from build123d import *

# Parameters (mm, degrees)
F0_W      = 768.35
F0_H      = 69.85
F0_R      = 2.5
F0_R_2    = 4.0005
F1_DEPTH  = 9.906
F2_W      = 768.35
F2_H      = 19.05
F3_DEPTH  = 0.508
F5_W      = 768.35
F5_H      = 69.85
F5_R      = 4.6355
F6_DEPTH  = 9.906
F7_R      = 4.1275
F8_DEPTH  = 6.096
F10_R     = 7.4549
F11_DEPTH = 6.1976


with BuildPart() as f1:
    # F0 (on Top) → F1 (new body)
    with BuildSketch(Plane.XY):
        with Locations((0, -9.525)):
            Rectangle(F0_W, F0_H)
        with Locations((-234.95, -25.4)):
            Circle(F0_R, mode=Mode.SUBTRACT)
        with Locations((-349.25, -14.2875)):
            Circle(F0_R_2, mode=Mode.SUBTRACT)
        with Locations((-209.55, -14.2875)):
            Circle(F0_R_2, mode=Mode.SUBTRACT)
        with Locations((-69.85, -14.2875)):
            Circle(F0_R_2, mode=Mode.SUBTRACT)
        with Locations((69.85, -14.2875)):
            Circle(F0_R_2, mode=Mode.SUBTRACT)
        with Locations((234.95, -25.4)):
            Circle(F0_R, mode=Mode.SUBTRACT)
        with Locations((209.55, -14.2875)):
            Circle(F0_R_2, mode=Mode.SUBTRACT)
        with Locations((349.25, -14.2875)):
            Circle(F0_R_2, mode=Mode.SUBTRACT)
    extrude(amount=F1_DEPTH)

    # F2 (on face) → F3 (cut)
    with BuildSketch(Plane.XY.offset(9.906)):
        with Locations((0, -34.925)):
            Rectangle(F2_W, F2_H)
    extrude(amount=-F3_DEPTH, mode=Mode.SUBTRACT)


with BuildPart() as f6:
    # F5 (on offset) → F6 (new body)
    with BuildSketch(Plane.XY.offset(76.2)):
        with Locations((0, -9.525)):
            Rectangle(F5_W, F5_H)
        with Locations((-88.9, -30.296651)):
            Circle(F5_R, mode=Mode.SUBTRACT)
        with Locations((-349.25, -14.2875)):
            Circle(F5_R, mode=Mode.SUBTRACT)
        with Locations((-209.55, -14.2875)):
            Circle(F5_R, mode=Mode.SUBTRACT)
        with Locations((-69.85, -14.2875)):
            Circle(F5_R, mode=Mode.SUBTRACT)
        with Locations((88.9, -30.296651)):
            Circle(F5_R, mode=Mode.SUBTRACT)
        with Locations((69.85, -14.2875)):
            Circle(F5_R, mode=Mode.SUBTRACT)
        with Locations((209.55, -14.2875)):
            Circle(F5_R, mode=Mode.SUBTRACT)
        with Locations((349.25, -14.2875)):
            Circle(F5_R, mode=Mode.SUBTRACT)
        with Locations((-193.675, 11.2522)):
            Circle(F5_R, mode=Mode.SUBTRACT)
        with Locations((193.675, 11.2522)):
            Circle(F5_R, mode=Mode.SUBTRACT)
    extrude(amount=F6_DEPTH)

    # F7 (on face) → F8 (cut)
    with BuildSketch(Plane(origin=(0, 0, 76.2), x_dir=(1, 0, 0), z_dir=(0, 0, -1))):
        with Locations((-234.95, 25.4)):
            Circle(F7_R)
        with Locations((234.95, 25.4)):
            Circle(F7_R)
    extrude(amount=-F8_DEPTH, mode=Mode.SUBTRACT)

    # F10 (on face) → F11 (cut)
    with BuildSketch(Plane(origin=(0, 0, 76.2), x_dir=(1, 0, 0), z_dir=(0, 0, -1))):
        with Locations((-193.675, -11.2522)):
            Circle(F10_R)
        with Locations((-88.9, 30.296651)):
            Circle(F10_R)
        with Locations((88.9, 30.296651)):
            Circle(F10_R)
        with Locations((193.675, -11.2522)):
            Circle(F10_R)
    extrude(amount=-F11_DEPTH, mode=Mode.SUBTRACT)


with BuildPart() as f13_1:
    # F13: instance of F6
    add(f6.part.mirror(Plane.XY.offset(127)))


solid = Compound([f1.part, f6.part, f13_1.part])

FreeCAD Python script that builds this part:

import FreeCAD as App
import Part
import Sketcher

V = App.Vector
Q = App.Units.Quantity


def add_polygon(sketch, points):
    """Adds a closed chain of lines whose ends are joined by coincident constraints."""
    first, n = sketch.GeometryCount, len(points)
    for a, b in zip(points, points[1:] + points[:1]):
        sketch.addGeometry(Part.LineSegment(App.Vector(*a, 0), App.Vector(*b, 0)), False)
    for i in range(n):
        sketch.addConstraint(Sketcher.Constraint("Coincident", first + i, 2, first + (i + 1) % n, 1))

doc = App.newDocument("Part")
body = doc.addObject("PartDesign::Body", "Body")

sketch1 = body.newObject("Sketcher::SketchObject", "Sketch")
sketch1.AttachmentSupport = (doc.getObject("XY_Plane"), [""])
sketch1.MapMode = "FlatFace"
add_polygon(sketch1, [(-384.2, 25.4), (-384.2, -44.5), (384.2, -44.5), (384.2, 25.4)])
sketch1.addGeometry(Part.Circle(V(-234.9, -25.4, 0), V(0, 0, 1), 2.5), False)
sketch1.addGeometry(Part.Circle(V(234.9, -25.4, 0), V(0, 0, 1), 2.5), False)
sketch1.addGeometry(Part.Circle(V(-349.2, -14.3, 0), V(0, 0, 1), 4), False)
sketch1.addGeometry(Part.Circle(V(-209.6, -14.3, 0), V(0, 0, 1), 4), False)
sketch1.addGeometry(Part.Circle(V(-69.8, -14.3, 0), V(0, 0, 1), 4), False)
sketch1.addGeometry(Part.Circle(V(69.8, -14.3, 0), V(0, 0, 1), 4), False)
sketch1.addGeometry(Part.Circle(V(209.6, -14.3, 0), V(0, 0, 1), 4), False)
sketch1.addGeometry(Part.Circle(V(349.2, -14.3, 0), V(0, 0, 1), 4), False)
sketch1.addConstraint([
    Sketcher.Constraint("Vertical", 0),
    Sketcher.Constraint("Horizontal", 1),
    Sketcher.Constraint("Vertical", 2),
    Sketcher.Constraint("Horizontal", 3),
    Sketcher.Constraint("Equal", 4, 5),
    Sketcher.Constraint("Equal", 6, 7),
    Sketcher.Constraint("Equal", 7, 8),
    Sketcher.Constraint("Equal", 8, 9),
    Sketcher.Constraint("Equal", 9, 10),
    Sketcher.Constraint("Equal", 10, 11),
    Sketcher.Constraint("Symmetric", 4, 3, 5, 3, -2),
    Sketcher.Constraint("Symmetric", 8, 3, 9, 3, -2),
    Sketcher.Constraint("Symmetric", 7, 3, 10, 3, -2),
    Sketcher.Constraint("Symmetric", 6, 3, 11, 3, -2),
    Sketcher.Constraint("Horizontal", 6, 3, 7, 3),
    Sketcher.Constraint("Horizontal", 7, 3, 8, 3),
    Sketcher.Constraint("Diameter", 6, Q("0.315 in")),
    Sketcher.Constraint("DistanceY", 4, 3, -1, 1, Q("1 in")),
    Sketcher.Constraint("DistanceY", -1, 1, 2, 2, Q("1 in")),
    Sketcher.Constraint("DistanceX", 6, 3, 5, 3, Q("23 in")),
    Sketcher.Constraint("DistanceX", 4, 3, 7, 3, Q("1 in")),
    Sketcher.Constraint("DistanceX", 6, 3, 8, 3, Q("11 in")),
    Sketcher.Constraint("DistanceX", 1, 1, 1, 2, Q("30.25 in")),
    Sketcher.Constraint("DistanceY", 0, 2, 0, 1, Q("2.75 in")),
    Sketcher.Constraint("DistanceX", 4, 3, 5, 3, Q("18.5 in")),
    Sketcher.Constraint("Diameter", 4, 5.0),
    Sketcher.Constraint("DistanceY", 6, 3, -1, 1, Q("0.5625 in")),
    Sketcher.Constraint("DistanceX", 0, 2, -1, 1, Q("15.125 in")),
])
pad1 = body.newObject("PartDesign::Pad", "Pad")
pad1.Profile = sketch1
pad1.Length = Q("0.39 in")

sketch2 = body.newObject("Sketcher::SketchObject", "Sketch001")
sketch2.AttachmentSupport = (doc.getObject("XY_Plane"), [""])
sketch2.MapMode = "FlatFace"
sketch2.AttachmentOffset = App.Placement(V(0, 0, 0.39 * 25.4), App.Rotation())
add_polygon(sketch2, [(-384, -25), (-384, -44), (384, -44), (384, -25)])
sketch2.addConstraint([
    Sketcher.Constraint("Vertical", 0),
    Sketcher.Constraint("Horizontal", 1),
    Sketcher.Constraint("Vertical", 2),
    Sketcher.Constraint("Horizontal", 3),
    Sketcher.Constraint("DistanceY", 2, 2, -1, 1, Q("1 in")),
    Sketcher.Constraint("DistanceX", 1, 1, 1, 2, Q("30.25 in")),
    Sketcher.Constraint("DistanceY", 0, 2, 0, 1, Q("0.75 in")),
    Sketcher.Constraint("DistanceX", 0, 2, -1, 1, Q("15.125 in")),
])
pocket1 = body.newObject("PartDesign::Pocket", "Pocket")
pocket1.Profile = sketch2
pocket1.Length = Q("0.02 in")
body2 = doc.addObject("PartDesign::Body", "Body001")

sketch3 = body2.newObject("Sketcher::SketchObject", "Sketch002")
sketch3.AttachmentSupport = (doc.getObject("XY_Plane001"), [""])
sketch3.MapMode = "FlatFace"
sketch3.AttachmentOffset = App.Placement(V(0, 0, 3 * 25.4), App.Rotation())
add_polygon(sketch3, [(-384.2, 25.4), (-384.2, -44.5), (384.2, -44.5), (384.2, 25.4)])
sketch3.addGeometry(Part.Circle(V(-88.9, -30.3, 0), V(0, 0, 1), 4.6), False)
sketch3.addGeometry(Part.Circle(V(-349.2, -14.3, 0), V(0, 0, 1), 4.6), False)
sketch3.addGeometry(Part.Circle(V(-209.6, -14.3, 0), V(0, 0, 1), 4.6), False)
sketch3.addGeometry(Part.Circle(V(-69.8, -14.3, 0), V(0, 0, 1), 4.6), False)
sketch3.addGeometry(Part.Circle(V(88.9, -30.3, 0), V(0, 0, 1), 4.6), False)
sketch3.addGeometry(Part.Circle(V(69.8, -14.3, 0), V(0, 0, 1), 4.6), False)
sketch3.addGeometry(Part.Circle(V(209.6, -14.3, 0), V(0, 0, 1), 4.6), False)
sketch3.addGeometry(Part.Circle(V(349.2, -14.3, 0), V(0, 0, 1), 4.6), False)
sketch3.addGeometry(Part.Circle(V(-193.7, 11.3, 0), V(0, 0, 1), 4.6), False)
sketch3.addGeometry(Part.Circle(V(193.7, 11.3, 0), V(0, 0, 1), 4.6), False)
sketch3.addConstraint([
    Sketcher.Constraint("Vertical", 0),
    Sketcher.Constraint("Horizontal", 1),
    Sketcher.Constraint("Vertical", 2),
    Sketcher.Constraint("Horizontal", 3),
    Sketcher.Constraint("Equal", 4, 5),
    Sketcher.Constraint("Equal", 5, 6),
    Sketcher.Constraint("Equal", 6, 7),
    Sketcher.Constraint("Equal", 7, 8),
    Sketcher.Constraint("Equal", 8, 9),
    Sketcher.Constraint("Equal", 9, 10),
    Sketcher.Constraint("Equal", 10, 11),
    Sketcher.Constraint("Equal", 11, 12),
    Sketcher.Constraint("Equal", 12, 13),
    Sketcher.Constraint("Symmetric", 4, 3, 8, 3, -2),
    Sketcher.Constraint("Symmetric", 7, 3, 9, 3, -2),
    Sketcher.Constraint("Symmetric", 6, 3, 10, 3, -2),
    Sketcher.Constraint("Symmetric", 5, 3, 11, 3, -2),
    Sketcher.Constraint("Symmetric", 12, 3, 13, 3, -2),
    Sketcher.Constraint("Horizontal", 5, 3, 6, 3),
    Sketcher.Constraint("Horizontal", 6, 3, 7, 3),
    Sketcher.Constraint("Diameter", 4, Q("0.365 in")),
    Sketcher.Constraint("DistanceY", -1, 1, 2, 2, Q("1 in")),
    Sketcher.Constraint("DistanceX", 5, 3, 7, 3, Q("11 in")),
    Sketcher.Constraint("DistanceX", 4, 3, 8, 3, Q("7 in")),
    Sketcher.Constraint("DistanceX", 6, 3, 9, 3, Q("11 in")),
    Sketcher.Constraint("DistanceX", 1, 1, 1, 2, Q("30.25 in")),
    Sketcher.Constraint("DistanceY", 0, 2, 0, 1, Q("2.75 in")),
    Sketcher.Constraint("DistanceX", 5, 3, 6, 3, Q("5.5 in")),
    Sketcher.Constraint("DistanceX", 0, 2, 12, 3, Q("7.5 in")),
    Sketcher.Constraint("DistanceX", 13, 3, 1, 2, Q("7.5 in")),
    Sketcher.Constraint("DistanceY", 5, 3, -1, 1, Q("0.5625 in")),
    Sketcher.Constraint("DistanceY", -1, 1, 12, 3, Q("0.443 in")),
    Sketcher.Constraint("DistanceY", 4, 3, -1, 1, 30.296651),
])
pad2 = body2.newObject("PartDesign::Pad", "Pad001")
pad2.Profile = sketch3
pad2.Length = Q("0.39 in")

sketch4 = body2.newObject("Sketcher::SketchObject", "Sketch003")
sketch4.AttachmentSupport = (doc.getObject("XY_Plane001"), [""])
sketch4.MapMode = "FlatFace"
sketch4.AttachmentOffset = App.Placement(V(0, 0, 3 * 25.4), App.Rotation())
sketch4.addGeometry([
    Part.Circle(V(-234.9, -25.4, 0), V(0, 0, 1), 4.1),
    Part.Circle(V(234.9, -25.4, 0), V(0, 0, 1), 4.1),
], False)
sketch4.addConstraint([
    Sketcher.Constraint("Equal", 0, 1),
    Sketcher.Constraint("Symmetric", 0, 3, 1, 3, -2),
    Sketcher.Constraint("Diameter", 0, Q("0.325 in")),
    Sketcher.Constraint("DistanceY", 0, 3, -1, 1, Q("1 in")),
    Sketcher.Constraint("DistanceX", 0, 3, 1, 3, Q("18.5 in")),
])
pocket2 = body2.newObject("PartDesign::Pocket", "Pocket001")
pocket2.Profile = sketch4
pocket2.Length = Q("0.24 in")
pocket2.Reversed = True

sketch5 = body2.newObject("Sketcher::SketchObject", "Sketch004")
sketch5.AttachmentSupport = (doc.getObject("XY_Plane001"), [""])
sketch5.MapMode = "FlatFace"
sketch5.AttachmentOffset = App.Placement(V(0, 0, 3 * 25.4), App.Rotation())
sketch5.addGeometry([
    Part.Circle(V(-194, 11, 0), V(0, 0, 1), 7),
    Part.Circle(V(-89, -30, 0), V(0, 0, 1), 7),
    Part.Circle(V(89, -30, 0), V(0, 0, 1), 7),
    Part.Circle(V(194, 11, 0), V(0, 0, 1), 7),
], False)
sketch5.addConstraint([
    Sketcher.Constraint("Equal", 0, 1),
    Sketcher.Constraint("Equal", 1, 2),
    Sketcher.Constraint("Equal", 2, 3),
    Sketcher.Constraint("Symmetric", 1, 3, 2, 3, -2),
    Sketcher.Constraint("Symmetric", 0, 3, 3, 3, -2),
    Sketcher.Constraint("Diameter", 0, Q("0.587 in")),
    Sketcher.Constraint("DistanceX", 1, 3, 2, 3, Q("7 in")),
    Sketcher.Constraint("DistanceX", 0, 3, 3, 3, Q("15.25 in")),
    Sketcher.Constraint("DistanceY", -1, 1, 0, 3, Q("0.443 in")),
    Sketcher.Constraint("DistanceY", 1, 3, -1, 1, 30.296651),
])
pocket3 = body2.newObject("PartDesign::Pocket", "Pocket002")
pocket3.Profile = sketch5
pocket3.Length = Q("0.244 in")
pocket3.Reversed = True
body3 = doc.addObject("PartDesign::Body", "Body002")
doc.recompute()

mirroring = doc.addObject("Part::Mirroring", "Mirroring")
mirroring.Source = body2
mirroring.Base = V(0, 0, 127)
mirroring.Normal = V(0, 0, 1)
body3.BaseFeature = mirroring
doc.recompute()
mirroring.Visibility = False

doc.recompute()
